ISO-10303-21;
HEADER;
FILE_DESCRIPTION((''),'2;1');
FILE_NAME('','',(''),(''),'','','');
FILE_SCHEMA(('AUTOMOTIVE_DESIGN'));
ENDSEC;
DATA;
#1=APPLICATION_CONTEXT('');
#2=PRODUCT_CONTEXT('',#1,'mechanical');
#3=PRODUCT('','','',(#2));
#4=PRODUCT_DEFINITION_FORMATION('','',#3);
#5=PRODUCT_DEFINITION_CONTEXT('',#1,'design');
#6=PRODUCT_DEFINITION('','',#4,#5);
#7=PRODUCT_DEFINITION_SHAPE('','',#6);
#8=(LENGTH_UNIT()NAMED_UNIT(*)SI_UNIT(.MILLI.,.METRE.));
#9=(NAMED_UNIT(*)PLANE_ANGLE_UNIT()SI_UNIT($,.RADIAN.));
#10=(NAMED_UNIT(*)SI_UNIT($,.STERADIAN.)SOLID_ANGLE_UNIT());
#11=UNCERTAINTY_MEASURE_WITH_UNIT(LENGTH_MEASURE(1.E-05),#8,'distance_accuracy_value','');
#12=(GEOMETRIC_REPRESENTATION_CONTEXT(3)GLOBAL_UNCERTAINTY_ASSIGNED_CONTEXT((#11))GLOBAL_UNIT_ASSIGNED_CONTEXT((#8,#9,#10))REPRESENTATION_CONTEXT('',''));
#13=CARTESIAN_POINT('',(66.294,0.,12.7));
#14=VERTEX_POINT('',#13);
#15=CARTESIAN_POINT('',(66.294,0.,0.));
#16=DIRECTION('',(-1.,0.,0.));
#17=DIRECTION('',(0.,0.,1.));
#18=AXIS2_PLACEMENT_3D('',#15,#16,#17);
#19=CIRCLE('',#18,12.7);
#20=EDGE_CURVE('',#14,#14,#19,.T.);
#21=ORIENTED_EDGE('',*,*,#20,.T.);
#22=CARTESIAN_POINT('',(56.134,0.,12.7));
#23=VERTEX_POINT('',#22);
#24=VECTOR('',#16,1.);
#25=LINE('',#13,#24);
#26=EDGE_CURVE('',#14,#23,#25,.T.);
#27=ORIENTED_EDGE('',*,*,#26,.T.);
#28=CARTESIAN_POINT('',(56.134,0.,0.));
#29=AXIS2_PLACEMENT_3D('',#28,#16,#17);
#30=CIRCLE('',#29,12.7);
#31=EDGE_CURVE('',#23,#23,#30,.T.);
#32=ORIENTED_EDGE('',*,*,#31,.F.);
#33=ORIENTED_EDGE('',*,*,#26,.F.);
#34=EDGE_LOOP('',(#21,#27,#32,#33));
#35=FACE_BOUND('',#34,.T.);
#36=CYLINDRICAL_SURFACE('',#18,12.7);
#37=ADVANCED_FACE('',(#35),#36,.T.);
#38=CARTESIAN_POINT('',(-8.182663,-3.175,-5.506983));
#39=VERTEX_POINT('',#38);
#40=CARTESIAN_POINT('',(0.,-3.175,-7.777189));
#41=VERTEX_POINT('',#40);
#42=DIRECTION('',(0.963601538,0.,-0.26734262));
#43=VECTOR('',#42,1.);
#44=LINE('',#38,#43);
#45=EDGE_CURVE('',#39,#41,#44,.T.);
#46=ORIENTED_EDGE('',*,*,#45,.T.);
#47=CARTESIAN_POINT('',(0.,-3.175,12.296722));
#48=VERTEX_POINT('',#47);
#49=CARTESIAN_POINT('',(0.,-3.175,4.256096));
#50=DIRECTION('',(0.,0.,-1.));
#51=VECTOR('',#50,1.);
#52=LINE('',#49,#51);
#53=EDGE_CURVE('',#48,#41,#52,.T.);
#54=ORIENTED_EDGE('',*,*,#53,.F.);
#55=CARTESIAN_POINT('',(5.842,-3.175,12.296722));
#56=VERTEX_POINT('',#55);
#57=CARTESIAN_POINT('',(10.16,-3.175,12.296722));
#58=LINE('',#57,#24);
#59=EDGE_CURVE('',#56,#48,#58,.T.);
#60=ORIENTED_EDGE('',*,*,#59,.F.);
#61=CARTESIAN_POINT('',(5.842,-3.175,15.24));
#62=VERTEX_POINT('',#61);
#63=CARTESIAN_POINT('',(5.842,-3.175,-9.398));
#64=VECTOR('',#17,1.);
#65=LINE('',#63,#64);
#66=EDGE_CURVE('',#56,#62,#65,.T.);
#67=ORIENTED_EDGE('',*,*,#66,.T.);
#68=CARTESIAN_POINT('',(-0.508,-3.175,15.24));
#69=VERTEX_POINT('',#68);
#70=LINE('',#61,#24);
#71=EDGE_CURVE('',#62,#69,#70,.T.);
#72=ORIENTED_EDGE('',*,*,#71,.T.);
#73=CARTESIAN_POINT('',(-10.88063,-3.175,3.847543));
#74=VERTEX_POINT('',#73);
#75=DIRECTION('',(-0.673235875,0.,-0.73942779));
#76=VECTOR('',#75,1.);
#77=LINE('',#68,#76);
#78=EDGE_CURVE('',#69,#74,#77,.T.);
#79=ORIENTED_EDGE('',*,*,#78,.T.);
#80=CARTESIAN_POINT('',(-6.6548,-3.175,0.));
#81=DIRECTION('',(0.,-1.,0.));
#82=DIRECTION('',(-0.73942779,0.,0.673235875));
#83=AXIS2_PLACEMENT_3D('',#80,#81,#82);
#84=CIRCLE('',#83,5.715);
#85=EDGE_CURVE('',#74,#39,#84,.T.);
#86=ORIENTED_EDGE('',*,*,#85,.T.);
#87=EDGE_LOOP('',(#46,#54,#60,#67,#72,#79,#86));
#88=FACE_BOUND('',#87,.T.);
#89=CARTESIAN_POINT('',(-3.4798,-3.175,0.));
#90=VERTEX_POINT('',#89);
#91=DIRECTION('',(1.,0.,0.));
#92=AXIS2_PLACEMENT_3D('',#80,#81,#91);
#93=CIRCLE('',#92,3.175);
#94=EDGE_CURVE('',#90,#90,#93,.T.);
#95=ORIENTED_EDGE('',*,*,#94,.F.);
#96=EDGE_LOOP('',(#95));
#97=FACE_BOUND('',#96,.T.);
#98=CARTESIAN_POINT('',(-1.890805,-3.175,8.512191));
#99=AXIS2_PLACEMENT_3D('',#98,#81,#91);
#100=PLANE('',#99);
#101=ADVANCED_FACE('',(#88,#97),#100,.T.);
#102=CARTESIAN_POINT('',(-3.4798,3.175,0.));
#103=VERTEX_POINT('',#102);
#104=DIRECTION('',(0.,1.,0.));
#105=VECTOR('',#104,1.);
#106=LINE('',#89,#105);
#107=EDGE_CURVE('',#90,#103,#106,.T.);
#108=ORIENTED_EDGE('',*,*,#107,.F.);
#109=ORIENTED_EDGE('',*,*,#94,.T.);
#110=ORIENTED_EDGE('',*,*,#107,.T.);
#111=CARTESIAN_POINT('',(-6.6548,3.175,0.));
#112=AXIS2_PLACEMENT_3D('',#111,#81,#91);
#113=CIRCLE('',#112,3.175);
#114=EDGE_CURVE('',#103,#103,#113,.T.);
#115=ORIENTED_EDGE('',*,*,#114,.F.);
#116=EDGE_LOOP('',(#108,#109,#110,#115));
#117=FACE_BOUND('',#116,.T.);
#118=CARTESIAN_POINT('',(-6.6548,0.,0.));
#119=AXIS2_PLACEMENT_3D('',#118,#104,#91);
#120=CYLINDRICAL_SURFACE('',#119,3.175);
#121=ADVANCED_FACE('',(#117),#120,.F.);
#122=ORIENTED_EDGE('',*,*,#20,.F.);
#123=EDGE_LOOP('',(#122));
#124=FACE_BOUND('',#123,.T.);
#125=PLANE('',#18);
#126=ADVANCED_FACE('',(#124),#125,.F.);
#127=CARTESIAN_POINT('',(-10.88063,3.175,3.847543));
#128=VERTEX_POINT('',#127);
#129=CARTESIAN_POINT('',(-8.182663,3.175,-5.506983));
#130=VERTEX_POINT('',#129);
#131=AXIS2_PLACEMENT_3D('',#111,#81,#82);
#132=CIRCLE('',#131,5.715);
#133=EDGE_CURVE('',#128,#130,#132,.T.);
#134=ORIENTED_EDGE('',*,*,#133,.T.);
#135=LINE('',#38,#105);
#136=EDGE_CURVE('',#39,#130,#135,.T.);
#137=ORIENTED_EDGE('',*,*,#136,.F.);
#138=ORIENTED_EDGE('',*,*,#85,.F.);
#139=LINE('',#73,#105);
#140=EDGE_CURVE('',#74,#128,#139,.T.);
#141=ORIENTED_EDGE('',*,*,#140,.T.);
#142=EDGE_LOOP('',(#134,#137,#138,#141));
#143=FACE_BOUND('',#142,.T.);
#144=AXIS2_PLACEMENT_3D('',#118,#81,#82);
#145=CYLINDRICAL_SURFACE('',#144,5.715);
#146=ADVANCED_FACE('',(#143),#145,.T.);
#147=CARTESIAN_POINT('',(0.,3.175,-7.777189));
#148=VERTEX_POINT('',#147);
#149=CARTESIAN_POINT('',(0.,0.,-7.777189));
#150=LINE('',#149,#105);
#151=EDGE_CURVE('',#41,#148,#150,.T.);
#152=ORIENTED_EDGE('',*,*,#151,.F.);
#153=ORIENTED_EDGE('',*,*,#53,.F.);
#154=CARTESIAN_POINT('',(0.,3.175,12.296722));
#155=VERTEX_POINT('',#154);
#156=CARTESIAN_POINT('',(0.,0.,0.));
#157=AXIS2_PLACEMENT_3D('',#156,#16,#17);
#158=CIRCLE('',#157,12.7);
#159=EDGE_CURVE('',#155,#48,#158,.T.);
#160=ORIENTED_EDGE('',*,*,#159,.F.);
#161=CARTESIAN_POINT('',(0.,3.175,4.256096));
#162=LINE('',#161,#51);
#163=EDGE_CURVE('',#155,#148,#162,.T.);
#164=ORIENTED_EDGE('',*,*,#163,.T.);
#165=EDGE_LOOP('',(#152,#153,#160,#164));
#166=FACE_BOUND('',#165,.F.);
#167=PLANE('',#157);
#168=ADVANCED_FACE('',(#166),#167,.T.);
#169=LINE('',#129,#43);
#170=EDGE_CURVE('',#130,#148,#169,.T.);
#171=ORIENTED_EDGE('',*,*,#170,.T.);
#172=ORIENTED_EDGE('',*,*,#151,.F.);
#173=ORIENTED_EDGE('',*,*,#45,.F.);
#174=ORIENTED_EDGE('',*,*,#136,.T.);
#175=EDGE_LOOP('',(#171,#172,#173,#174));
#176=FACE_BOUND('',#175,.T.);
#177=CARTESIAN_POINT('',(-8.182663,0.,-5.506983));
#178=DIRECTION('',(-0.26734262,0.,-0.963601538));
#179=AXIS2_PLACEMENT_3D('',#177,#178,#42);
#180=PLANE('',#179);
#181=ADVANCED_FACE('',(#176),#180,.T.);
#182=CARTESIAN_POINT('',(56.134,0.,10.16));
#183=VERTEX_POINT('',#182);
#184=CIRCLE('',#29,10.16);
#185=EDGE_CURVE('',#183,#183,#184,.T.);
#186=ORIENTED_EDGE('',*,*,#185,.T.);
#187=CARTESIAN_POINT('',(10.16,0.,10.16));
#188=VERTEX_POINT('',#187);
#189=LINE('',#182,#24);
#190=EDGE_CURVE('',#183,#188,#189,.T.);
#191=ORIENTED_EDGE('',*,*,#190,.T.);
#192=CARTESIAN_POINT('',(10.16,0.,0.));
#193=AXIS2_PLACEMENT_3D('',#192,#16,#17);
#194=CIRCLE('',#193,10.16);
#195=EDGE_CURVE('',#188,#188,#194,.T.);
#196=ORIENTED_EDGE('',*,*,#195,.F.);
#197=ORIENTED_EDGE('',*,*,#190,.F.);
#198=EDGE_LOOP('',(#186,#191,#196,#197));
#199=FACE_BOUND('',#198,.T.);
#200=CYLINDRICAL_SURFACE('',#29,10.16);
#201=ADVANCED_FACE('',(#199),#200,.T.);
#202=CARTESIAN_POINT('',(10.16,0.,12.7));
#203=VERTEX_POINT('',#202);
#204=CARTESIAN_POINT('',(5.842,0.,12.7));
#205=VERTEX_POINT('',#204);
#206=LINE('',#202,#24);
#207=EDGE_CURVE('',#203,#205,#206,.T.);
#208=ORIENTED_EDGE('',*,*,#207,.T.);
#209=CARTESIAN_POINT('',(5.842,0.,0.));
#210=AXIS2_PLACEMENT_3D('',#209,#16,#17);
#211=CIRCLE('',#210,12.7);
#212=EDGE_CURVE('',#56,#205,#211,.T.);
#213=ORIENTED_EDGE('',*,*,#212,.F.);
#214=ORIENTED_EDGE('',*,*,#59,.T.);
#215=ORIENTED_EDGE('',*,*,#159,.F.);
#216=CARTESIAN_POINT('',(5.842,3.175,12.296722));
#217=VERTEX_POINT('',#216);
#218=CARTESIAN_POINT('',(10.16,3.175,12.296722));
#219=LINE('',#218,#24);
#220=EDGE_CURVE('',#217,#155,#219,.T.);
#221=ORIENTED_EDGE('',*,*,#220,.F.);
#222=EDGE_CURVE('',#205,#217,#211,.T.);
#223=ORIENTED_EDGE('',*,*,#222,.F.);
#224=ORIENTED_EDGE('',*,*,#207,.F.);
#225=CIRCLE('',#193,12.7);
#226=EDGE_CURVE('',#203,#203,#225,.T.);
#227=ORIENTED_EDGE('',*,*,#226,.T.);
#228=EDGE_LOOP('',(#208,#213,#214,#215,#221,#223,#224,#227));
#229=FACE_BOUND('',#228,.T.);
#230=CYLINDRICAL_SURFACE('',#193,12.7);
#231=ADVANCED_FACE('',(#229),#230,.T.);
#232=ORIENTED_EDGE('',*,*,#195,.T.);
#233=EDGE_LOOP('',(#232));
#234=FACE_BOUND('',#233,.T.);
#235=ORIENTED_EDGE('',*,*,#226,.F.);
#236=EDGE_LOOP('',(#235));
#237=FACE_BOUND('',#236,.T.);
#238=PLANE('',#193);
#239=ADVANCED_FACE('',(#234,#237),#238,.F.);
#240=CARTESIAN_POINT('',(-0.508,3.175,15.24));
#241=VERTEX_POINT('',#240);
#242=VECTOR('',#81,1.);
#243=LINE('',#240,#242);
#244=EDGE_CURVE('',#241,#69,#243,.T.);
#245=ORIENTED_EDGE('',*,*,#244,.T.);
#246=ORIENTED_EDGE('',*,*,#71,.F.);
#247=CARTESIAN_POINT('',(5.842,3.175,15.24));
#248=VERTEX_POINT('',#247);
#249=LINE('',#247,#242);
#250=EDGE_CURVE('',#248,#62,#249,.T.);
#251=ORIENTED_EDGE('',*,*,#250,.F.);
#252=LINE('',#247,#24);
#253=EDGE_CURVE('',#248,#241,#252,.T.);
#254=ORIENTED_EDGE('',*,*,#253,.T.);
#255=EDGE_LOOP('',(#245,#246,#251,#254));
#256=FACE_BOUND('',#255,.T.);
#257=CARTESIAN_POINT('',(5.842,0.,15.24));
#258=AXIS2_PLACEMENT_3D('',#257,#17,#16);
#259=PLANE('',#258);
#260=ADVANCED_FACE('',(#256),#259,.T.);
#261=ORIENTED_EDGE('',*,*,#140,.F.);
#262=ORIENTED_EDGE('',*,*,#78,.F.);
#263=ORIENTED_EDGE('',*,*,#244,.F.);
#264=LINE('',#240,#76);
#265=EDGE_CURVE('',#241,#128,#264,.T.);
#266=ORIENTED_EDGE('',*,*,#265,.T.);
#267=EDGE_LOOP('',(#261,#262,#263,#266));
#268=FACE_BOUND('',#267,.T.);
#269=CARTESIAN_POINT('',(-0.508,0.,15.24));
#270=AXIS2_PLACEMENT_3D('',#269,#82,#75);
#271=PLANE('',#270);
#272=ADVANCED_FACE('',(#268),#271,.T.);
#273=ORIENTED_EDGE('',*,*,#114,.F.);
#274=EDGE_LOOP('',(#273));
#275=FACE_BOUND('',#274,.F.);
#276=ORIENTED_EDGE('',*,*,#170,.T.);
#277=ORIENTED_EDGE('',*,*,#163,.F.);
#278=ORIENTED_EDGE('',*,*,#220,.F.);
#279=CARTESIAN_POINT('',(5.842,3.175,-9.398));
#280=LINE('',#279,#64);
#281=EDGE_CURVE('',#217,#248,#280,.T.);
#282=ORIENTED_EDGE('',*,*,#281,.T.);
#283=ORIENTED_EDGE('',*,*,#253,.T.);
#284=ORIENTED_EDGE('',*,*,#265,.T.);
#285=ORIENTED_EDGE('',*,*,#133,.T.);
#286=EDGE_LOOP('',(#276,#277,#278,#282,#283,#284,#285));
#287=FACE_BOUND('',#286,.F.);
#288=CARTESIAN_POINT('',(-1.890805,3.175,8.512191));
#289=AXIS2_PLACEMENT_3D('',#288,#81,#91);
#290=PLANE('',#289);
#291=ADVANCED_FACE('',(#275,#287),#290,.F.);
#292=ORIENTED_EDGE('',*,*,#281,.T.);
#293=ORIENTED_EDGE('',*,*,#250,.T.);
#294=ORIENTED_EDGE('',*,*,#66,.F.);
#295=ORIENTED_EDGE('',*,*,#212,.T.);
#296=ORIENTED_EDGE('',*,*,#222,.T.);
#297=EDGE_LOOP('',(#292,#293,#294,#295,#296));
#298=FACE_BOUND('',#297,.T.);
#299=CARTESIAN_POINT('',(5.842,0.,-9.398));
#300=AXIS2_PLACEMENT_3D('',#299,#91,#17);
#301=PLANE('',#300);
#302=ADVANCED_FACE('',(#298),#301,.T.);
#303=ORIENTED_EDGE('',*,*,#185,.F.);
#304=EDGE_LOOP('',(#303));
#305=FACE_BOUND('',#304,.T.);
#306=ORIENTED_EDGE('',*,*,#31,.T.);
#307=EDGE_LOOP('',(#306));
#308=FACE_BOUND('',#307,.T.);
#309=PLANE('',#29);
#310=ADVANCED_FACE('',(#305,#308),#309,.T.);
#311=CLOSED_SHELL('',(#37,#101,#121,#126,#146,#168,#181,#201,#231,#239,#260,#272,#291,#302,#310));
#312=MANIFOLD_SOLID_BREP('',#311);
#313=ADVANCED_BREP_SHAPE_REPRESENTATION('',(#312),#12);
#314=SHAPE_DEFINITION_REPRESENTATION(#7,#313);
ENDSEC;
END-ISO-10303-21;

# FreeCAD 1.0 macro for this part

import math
import FreeCAD as App
import Part
import Sketcher
Q = App.Units.Quantity

doc = App.newDocument("Part")
body = doc.addObject("PartDesign::Body", "Body")

# Sketch on XZ plane
sketch1 = doc.addObject("Sketcher::SketchObject", "Sketch")
body.addObject(sketch1)
sketch1.AttachmentSupport = (doc.XZ_Plane, [""])
sketch1.MapMode = "FlatFace"
sketch1.addGeometry([
    Part.LineSegment(App.Vector(66.3, 0, 0), App.Vector(66.3, 12.7, 0)),  # 0
    Part.LineSegment(App.Vector(66.3, 12.7, 0), App.Vector(56.1, 12.7, 0)),  # 1
    Part.LineSegment(App.Vector(56.1, 12.7, 0), App.Vector(56.1, 10.2, 0)),  # 2
    Part.LineSegment(App.Vector(56.1, 10.2, 0), App.Vector(10.2, 10.2, 0)),  # 3
    Part.LineSegment(App.Vector(10.2, 10.2, 0), App.Vector(10.2, 12.7, 0)),  # 4
    Part.LineSegment(App.Vector(10.2, 12.7, 0), App.Vector(0, 12.7, 0)),  # 5
    Part.LineSegment(App.Vector(0, 12.7, 0), App.Vector(0, 0, 0)),  # 6
    Part.LineSegment(App.Vector(0, 0, 0), App.Vector(66.3, 0, 0)),  # 7
], False)
sketch1.addConstraint([
    Sketcher.Constraint("Coincident", 0, 2, 1, 1),
    Sketcher.Constraint("Coincident", 1, 2, 2, 1),
    Sketcher.Constraint("Coincident", 2, 2, 3, 1),
    Sketcher.Constraint("Coincident", 3, 2, 4, 1),
    Sketcher.Constraint("Coincident", 4, 2, 5, 1),
    Sketcher.Constraint("Coincident", 5, 2, 6, 1),
    Sketcher.Constraint("Coincident", 6, 2, 7, 1),
    Sketcher.Constraint("Coincident", 7, 2, 0, 1),
    Sketcher.Constraint("Vertical", 0),
    Sketcher.Constraint("Horizontal", 1),
    Sketcher.Constraint("Vertical", 2),
    Sketcher.Constraint("Horizontal", 3),
    Sketcher.Constraint("Vertical", 4),
    Sketcher.Constraint("Horizontal", 5),
    Sketcher.Constraint("Vertical", 6),
    Sketcher.Constraint("Horizontal", 7),
    Sketcher.Constraint("Coincident", 6, 2, -1, 1),
    Sketcher.Constraint("Horizontal", 1, 2, 4, 2),
    Sketcher.Constraint("Equal", 1, 5),
    Sketcher.Constraint("DistanceX", 1, 2, 1, 1, Q("0.4 in")),
    Sketcher.Constraint("DistanceY", 0, 1, 0, 2, Q("0.5 in")),
    Sketcher.Constraint("DistanceY", 2, 2, 2, 1, Q("0.1 in")),
    Sketcher.Constraint("DistanceX", 3, 2, 3, 1, Q("1.81 in")),
])
revolution = doc.addObject("PartDesign::Revolution", "Revolution")
body.addObject(revolution)
revolution.Profile = sketch1
revolution.ReferenceAxis = (sketch1, ["H_Axis"])
revolution.Angle = 360

# Sketch on XZ plane
sketch2 = doc.addObject("Sketcher::SketchObject", "Sketch001")
body.addObject(sketch2)
sketch2.AttachmentSupport = (doc.XZ_Plane, [""])
sketch2.MapMode = "FlatFace"
sketch2.addGeometry([
    Part.LineSegment(App.Vector(5.8, -9.4, 0), App.Vector(5.8, 15.2, 0)),  # 0
    Part.LineSegment(App.Vector(5.8, 15.2, 0), App.Vector(-0.5, 15.2, 0)),  # 1
    Part.LineSegment(App.Vector(-0.5, 15.2, 0), App.Vector(-10.9, 3.8, 0)),  # 2
    Part.ArcOfCircle(Part.Circle(App.Vector(-6.7, 0, 0), App.Vector(0, 0, 1), 5.7), math.radians(138), math.radians(254)),  # 3
    Part.LineSegment(App.Vector(-8.2, -5.5, 0), App.Vector(5.8, -9.4, 0)),  # 4
    Part.Circle(App.Vector(-6.7, 0, 0), App.Vector(0, 0, 1), 3.2),  # 5
], False)
sketch2.addConstraint([
    Sketcher.Constraint("Coincident", 0, 2, 1, 1),
    Sketcher.Constraint("Coincident", 1, 2, 2, 1),
    Sketcher.Constraint("Tangent", 2, 2, 3, 1),
    Sketcher.Constraint("Tangent", 3, 2, 4, 1),
    Sketcher.Constraint("Coincident", 4, 2, 0, 1),
    Sketcher.Constraint("Vertical", 0),
    Sketcher.Constraint("Horizontal", 1),
    Sketcher.Constraint("Coincident", 5, 3, 3, 3),
    Sketcher.Constraint("PointOnObject", 3, 3, -1),
    Sketcher.Constraint("Diameter", 5, Q("0.25 in")),
    Sketcher.Constraint("Radius", 3, Q("0.225 in")),
    Sketcher.Constraint("DistanceX", 1, 2, 1, 1, Q("0.25 in")),
    Sketcher.Constraint("DistanceY", 0, 1, 0, 2, Q("0.97 in")),
    Sketcher.Constraint("DistanceY", -1, 1, 0, 2, Q("0.6 in")),
    Sketcher.Constraint("DistanceX", -1, 1, 0, 2, Q("0.23 in")),
    Sketcher.Constraint("DistanceX", 3, 3, -1, 1, Q("0.262 in")),
])
pad1 = doc.addObject("PartDesign::Pad", "Pad")
body.addObject(pad1)
pad1.Profile = sketch2
pad1.Length = Q("0.25 in")
pad1.Midplane = True

doc.recompute()
